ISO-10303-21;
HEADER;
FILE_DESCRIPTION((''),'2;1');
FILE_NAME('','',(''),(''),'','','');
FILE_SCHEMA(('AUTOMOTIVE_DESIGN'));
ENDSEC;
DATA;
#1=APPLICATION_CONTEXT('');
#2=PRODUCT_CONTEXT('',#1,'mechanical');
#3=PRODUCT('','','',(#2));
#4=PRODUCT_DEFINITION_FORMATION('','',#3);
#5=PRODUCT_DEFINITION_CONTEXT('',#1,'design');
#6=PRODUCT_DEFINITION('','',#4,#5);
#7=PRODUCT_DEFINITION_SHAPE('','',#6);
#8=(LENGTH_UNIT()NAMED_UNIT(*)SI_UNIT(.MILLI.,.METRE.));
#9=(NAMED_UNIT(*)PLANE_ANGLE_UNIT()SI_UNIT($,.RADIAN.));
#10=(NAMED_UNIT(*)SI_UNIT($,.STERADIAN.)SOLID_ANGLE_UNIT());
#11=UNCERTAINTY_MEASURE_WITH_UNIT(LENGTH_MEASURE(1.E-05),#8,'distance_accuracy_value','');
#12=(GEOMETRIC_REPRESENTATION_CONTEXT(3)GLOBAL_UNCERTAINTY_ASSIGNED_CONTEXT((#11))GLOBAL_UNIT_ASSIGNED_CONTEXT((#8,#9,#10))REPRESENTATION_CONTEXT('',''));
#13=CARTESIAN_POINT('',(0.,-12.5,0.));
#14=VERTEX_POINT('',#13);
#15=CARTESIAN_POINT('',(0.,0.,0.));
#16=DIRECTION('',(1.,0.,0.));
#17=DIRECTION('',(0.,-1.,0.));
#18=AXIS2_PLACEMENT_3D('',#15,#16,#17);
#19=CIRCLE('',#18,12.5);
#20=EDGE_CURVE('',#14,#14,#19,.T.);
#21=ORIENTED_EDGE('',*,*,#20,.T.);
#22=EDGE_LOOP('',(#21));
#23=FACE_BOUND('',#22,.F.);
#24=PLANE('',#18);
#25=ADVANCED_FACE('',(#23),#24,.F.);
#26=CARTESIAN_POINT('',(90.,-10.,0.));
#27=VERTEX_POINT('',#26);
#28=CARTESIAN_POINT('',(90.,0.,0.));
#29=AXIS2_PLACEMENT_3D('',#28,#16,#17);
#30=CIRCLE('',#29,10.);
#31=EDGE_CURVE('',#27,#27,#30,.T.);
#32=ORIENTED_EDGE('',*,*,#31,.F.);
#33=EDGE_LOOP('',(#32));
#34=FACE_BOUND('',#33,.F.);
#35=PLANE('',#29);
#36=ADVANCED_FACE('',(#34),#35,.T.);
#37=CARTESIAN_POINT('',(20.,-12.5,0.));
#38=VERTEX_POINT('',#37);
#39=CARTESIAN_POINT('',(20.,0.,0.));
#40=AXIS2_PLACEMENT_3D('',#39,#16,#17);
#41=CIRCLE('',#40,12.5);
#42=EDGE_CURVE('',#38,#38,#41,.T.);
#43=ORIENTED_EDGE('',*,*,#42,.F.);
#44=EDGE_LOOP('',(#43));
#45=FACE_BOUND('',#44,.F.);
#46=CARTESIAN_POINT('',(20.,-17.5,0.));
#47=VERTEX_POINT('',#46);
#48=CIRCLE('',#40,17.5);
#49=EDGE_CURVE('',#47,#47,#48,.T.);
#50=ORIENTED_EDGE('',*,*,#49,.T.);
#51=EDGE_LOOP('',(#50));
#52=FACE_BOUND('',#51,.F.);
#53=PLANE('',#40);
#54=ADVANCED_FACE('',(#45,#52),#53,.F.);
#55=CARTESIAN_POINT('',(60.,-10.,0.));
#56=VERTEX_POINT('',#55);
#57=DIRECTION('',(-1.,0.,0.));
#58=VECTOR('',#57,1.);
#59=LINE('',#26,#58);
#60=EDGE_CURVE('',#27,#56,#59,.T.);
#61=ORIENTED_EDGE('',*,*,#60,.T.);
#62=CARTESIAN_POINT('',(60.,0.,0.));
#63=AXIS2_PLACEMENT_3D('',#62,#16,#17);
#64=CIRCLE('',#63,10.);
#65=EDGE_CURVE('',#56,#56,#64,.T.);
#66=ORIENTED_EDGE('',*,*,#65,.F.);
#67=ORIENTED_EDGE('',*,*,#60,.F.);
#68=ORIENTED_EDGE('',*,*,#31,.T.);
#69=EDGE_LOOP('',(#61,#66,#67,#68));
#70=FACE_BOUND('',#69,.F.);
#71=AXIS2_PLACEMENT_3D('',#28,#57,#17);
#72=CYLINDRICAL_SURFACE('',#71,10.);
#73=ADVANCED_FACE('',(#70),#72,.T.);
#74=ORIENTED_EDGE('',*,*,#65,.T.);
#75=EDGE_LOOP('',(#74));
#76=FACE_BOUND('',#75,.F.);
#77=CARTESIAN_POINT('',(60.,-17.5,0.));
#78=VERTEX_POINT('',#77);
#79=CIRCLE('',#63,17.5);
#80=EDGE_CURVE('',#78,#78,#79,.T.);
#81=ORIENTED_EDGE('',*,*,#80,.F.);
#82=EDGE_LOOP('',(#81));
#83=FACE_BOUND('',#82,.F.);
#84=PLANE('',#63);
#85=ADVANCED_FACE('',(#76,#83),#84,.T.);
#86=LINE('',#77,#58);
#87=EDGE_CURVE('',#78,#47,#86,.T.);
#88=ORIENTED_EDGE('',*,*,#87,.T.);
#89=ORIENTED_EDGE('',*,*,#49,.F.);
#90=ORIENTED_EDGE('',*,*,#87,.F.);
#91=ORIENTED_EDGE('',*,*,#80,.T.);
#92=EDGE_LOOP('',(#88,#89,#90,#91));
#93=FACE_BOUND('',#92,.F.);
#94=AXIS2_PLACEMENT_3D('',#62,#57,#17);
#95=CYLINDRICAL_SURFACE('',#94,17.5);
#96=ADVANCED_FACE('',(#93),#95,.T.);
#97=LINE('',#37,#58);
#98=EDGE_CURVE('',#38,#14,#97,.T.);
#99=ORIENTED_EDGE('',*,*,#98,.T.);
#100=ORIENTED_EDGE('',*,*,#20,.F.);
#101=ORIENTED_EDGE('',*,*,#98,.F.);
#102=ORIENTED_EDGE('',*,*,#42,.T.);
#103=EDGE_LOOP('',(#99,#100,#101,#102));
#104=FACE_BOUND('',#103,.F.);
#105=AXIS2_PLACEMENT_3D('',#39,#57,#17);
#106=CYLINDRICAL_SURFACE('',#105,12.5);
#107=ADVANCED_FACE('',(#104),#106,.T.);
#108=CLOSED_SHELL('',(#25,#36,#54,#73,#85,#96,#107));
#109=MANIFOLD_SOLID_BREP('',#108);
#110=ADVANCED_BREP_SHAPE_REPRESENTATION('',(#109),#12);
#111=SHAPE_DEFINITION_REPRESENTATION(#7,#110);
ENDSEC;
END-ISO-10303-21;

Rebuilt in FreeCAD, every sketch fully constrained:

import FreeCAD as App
import Part
import Sketcher

V = App.Vector


def add_polygon(sketch, points):
    """Adds a closed chain of lines whose ends are joined by coincident constraints."""
    first, n = sketch.GeometryCount, len(points)
    for a, b in zip(points, points[1:] + points[:1]):
        sketch.addGeometry(Part.LineSegment(App.Vector(*a, 0), App.Vector(*b, 0)), False)
    for i in range(n):
        sketch.addConstraint(Sketcher.Constraint("Coincident", first + i, 2, first + (i + 1) % n, 1))

doc = App.newDocument("Part")
body = doc.addObject("PartDesign::Body", "Body")

# Sketch on XY plane
sketch1 = doc.addObject("Sketcher::SketchObject", "Sketch")
body.addObject(sketch1)
sketch1.AttachmentSupport = (doc.XY_Plane, [""])
sketch1.MapMode = "FlatFace"
add_polygon(sketch1, [(0, 12), (0, 0), (90, 0), (90, 10), (60, 10), (60, 18), (20, 18), (20, 12)])  # lines 0-7
sketch1.addConstraint([
    Sketcher.Constraint("Vertical", 0),
    Sketcher.Constraint("Horizontal", 1),
    Sketcher.Constraint("Vertical", 2),
    Sketcher.Constraint("Horizontal", 3),
    Sketcher.Constraint("Vertical", 4),
    Sketcher.Constraint("Horizontal", 5),
    Sketcher.Constraint("Vertical", 6),
    Sketcher.Constraint("Horizontal", 7),
    Sketcher.Constraint("Coincident", 0, 2, -1, 1),
    Sketcher.Constraint("DistanceX", 1, 1, 1, 2, 90.0),
    Sketcher.Constraint("DistanceX", 5, 2, 5, 1, 40.0),
    Sketcher.Constraint("DistanceX", 7, 2, 7, 1, 20.0),
    Sketcher.Constraint("DistanceY", 2, 1, 2, 2, 10.0),
    Sketcher.Constraint("DistanceY", 6, 2, 6, 1, 5.0),
    Sketcher.Constraint("DistanceY", 0, 2, 0, 1, 12.5),
])
revolution = doc.addObject("PartDesign::Revolution", "Revolution")
body.addObject(revolution)
revolution.Profile = sketch1
revolution.ReferenceAxis = (sketch1, ["H_Axis"])
revolution.Angle = 360

doc.recompute()
